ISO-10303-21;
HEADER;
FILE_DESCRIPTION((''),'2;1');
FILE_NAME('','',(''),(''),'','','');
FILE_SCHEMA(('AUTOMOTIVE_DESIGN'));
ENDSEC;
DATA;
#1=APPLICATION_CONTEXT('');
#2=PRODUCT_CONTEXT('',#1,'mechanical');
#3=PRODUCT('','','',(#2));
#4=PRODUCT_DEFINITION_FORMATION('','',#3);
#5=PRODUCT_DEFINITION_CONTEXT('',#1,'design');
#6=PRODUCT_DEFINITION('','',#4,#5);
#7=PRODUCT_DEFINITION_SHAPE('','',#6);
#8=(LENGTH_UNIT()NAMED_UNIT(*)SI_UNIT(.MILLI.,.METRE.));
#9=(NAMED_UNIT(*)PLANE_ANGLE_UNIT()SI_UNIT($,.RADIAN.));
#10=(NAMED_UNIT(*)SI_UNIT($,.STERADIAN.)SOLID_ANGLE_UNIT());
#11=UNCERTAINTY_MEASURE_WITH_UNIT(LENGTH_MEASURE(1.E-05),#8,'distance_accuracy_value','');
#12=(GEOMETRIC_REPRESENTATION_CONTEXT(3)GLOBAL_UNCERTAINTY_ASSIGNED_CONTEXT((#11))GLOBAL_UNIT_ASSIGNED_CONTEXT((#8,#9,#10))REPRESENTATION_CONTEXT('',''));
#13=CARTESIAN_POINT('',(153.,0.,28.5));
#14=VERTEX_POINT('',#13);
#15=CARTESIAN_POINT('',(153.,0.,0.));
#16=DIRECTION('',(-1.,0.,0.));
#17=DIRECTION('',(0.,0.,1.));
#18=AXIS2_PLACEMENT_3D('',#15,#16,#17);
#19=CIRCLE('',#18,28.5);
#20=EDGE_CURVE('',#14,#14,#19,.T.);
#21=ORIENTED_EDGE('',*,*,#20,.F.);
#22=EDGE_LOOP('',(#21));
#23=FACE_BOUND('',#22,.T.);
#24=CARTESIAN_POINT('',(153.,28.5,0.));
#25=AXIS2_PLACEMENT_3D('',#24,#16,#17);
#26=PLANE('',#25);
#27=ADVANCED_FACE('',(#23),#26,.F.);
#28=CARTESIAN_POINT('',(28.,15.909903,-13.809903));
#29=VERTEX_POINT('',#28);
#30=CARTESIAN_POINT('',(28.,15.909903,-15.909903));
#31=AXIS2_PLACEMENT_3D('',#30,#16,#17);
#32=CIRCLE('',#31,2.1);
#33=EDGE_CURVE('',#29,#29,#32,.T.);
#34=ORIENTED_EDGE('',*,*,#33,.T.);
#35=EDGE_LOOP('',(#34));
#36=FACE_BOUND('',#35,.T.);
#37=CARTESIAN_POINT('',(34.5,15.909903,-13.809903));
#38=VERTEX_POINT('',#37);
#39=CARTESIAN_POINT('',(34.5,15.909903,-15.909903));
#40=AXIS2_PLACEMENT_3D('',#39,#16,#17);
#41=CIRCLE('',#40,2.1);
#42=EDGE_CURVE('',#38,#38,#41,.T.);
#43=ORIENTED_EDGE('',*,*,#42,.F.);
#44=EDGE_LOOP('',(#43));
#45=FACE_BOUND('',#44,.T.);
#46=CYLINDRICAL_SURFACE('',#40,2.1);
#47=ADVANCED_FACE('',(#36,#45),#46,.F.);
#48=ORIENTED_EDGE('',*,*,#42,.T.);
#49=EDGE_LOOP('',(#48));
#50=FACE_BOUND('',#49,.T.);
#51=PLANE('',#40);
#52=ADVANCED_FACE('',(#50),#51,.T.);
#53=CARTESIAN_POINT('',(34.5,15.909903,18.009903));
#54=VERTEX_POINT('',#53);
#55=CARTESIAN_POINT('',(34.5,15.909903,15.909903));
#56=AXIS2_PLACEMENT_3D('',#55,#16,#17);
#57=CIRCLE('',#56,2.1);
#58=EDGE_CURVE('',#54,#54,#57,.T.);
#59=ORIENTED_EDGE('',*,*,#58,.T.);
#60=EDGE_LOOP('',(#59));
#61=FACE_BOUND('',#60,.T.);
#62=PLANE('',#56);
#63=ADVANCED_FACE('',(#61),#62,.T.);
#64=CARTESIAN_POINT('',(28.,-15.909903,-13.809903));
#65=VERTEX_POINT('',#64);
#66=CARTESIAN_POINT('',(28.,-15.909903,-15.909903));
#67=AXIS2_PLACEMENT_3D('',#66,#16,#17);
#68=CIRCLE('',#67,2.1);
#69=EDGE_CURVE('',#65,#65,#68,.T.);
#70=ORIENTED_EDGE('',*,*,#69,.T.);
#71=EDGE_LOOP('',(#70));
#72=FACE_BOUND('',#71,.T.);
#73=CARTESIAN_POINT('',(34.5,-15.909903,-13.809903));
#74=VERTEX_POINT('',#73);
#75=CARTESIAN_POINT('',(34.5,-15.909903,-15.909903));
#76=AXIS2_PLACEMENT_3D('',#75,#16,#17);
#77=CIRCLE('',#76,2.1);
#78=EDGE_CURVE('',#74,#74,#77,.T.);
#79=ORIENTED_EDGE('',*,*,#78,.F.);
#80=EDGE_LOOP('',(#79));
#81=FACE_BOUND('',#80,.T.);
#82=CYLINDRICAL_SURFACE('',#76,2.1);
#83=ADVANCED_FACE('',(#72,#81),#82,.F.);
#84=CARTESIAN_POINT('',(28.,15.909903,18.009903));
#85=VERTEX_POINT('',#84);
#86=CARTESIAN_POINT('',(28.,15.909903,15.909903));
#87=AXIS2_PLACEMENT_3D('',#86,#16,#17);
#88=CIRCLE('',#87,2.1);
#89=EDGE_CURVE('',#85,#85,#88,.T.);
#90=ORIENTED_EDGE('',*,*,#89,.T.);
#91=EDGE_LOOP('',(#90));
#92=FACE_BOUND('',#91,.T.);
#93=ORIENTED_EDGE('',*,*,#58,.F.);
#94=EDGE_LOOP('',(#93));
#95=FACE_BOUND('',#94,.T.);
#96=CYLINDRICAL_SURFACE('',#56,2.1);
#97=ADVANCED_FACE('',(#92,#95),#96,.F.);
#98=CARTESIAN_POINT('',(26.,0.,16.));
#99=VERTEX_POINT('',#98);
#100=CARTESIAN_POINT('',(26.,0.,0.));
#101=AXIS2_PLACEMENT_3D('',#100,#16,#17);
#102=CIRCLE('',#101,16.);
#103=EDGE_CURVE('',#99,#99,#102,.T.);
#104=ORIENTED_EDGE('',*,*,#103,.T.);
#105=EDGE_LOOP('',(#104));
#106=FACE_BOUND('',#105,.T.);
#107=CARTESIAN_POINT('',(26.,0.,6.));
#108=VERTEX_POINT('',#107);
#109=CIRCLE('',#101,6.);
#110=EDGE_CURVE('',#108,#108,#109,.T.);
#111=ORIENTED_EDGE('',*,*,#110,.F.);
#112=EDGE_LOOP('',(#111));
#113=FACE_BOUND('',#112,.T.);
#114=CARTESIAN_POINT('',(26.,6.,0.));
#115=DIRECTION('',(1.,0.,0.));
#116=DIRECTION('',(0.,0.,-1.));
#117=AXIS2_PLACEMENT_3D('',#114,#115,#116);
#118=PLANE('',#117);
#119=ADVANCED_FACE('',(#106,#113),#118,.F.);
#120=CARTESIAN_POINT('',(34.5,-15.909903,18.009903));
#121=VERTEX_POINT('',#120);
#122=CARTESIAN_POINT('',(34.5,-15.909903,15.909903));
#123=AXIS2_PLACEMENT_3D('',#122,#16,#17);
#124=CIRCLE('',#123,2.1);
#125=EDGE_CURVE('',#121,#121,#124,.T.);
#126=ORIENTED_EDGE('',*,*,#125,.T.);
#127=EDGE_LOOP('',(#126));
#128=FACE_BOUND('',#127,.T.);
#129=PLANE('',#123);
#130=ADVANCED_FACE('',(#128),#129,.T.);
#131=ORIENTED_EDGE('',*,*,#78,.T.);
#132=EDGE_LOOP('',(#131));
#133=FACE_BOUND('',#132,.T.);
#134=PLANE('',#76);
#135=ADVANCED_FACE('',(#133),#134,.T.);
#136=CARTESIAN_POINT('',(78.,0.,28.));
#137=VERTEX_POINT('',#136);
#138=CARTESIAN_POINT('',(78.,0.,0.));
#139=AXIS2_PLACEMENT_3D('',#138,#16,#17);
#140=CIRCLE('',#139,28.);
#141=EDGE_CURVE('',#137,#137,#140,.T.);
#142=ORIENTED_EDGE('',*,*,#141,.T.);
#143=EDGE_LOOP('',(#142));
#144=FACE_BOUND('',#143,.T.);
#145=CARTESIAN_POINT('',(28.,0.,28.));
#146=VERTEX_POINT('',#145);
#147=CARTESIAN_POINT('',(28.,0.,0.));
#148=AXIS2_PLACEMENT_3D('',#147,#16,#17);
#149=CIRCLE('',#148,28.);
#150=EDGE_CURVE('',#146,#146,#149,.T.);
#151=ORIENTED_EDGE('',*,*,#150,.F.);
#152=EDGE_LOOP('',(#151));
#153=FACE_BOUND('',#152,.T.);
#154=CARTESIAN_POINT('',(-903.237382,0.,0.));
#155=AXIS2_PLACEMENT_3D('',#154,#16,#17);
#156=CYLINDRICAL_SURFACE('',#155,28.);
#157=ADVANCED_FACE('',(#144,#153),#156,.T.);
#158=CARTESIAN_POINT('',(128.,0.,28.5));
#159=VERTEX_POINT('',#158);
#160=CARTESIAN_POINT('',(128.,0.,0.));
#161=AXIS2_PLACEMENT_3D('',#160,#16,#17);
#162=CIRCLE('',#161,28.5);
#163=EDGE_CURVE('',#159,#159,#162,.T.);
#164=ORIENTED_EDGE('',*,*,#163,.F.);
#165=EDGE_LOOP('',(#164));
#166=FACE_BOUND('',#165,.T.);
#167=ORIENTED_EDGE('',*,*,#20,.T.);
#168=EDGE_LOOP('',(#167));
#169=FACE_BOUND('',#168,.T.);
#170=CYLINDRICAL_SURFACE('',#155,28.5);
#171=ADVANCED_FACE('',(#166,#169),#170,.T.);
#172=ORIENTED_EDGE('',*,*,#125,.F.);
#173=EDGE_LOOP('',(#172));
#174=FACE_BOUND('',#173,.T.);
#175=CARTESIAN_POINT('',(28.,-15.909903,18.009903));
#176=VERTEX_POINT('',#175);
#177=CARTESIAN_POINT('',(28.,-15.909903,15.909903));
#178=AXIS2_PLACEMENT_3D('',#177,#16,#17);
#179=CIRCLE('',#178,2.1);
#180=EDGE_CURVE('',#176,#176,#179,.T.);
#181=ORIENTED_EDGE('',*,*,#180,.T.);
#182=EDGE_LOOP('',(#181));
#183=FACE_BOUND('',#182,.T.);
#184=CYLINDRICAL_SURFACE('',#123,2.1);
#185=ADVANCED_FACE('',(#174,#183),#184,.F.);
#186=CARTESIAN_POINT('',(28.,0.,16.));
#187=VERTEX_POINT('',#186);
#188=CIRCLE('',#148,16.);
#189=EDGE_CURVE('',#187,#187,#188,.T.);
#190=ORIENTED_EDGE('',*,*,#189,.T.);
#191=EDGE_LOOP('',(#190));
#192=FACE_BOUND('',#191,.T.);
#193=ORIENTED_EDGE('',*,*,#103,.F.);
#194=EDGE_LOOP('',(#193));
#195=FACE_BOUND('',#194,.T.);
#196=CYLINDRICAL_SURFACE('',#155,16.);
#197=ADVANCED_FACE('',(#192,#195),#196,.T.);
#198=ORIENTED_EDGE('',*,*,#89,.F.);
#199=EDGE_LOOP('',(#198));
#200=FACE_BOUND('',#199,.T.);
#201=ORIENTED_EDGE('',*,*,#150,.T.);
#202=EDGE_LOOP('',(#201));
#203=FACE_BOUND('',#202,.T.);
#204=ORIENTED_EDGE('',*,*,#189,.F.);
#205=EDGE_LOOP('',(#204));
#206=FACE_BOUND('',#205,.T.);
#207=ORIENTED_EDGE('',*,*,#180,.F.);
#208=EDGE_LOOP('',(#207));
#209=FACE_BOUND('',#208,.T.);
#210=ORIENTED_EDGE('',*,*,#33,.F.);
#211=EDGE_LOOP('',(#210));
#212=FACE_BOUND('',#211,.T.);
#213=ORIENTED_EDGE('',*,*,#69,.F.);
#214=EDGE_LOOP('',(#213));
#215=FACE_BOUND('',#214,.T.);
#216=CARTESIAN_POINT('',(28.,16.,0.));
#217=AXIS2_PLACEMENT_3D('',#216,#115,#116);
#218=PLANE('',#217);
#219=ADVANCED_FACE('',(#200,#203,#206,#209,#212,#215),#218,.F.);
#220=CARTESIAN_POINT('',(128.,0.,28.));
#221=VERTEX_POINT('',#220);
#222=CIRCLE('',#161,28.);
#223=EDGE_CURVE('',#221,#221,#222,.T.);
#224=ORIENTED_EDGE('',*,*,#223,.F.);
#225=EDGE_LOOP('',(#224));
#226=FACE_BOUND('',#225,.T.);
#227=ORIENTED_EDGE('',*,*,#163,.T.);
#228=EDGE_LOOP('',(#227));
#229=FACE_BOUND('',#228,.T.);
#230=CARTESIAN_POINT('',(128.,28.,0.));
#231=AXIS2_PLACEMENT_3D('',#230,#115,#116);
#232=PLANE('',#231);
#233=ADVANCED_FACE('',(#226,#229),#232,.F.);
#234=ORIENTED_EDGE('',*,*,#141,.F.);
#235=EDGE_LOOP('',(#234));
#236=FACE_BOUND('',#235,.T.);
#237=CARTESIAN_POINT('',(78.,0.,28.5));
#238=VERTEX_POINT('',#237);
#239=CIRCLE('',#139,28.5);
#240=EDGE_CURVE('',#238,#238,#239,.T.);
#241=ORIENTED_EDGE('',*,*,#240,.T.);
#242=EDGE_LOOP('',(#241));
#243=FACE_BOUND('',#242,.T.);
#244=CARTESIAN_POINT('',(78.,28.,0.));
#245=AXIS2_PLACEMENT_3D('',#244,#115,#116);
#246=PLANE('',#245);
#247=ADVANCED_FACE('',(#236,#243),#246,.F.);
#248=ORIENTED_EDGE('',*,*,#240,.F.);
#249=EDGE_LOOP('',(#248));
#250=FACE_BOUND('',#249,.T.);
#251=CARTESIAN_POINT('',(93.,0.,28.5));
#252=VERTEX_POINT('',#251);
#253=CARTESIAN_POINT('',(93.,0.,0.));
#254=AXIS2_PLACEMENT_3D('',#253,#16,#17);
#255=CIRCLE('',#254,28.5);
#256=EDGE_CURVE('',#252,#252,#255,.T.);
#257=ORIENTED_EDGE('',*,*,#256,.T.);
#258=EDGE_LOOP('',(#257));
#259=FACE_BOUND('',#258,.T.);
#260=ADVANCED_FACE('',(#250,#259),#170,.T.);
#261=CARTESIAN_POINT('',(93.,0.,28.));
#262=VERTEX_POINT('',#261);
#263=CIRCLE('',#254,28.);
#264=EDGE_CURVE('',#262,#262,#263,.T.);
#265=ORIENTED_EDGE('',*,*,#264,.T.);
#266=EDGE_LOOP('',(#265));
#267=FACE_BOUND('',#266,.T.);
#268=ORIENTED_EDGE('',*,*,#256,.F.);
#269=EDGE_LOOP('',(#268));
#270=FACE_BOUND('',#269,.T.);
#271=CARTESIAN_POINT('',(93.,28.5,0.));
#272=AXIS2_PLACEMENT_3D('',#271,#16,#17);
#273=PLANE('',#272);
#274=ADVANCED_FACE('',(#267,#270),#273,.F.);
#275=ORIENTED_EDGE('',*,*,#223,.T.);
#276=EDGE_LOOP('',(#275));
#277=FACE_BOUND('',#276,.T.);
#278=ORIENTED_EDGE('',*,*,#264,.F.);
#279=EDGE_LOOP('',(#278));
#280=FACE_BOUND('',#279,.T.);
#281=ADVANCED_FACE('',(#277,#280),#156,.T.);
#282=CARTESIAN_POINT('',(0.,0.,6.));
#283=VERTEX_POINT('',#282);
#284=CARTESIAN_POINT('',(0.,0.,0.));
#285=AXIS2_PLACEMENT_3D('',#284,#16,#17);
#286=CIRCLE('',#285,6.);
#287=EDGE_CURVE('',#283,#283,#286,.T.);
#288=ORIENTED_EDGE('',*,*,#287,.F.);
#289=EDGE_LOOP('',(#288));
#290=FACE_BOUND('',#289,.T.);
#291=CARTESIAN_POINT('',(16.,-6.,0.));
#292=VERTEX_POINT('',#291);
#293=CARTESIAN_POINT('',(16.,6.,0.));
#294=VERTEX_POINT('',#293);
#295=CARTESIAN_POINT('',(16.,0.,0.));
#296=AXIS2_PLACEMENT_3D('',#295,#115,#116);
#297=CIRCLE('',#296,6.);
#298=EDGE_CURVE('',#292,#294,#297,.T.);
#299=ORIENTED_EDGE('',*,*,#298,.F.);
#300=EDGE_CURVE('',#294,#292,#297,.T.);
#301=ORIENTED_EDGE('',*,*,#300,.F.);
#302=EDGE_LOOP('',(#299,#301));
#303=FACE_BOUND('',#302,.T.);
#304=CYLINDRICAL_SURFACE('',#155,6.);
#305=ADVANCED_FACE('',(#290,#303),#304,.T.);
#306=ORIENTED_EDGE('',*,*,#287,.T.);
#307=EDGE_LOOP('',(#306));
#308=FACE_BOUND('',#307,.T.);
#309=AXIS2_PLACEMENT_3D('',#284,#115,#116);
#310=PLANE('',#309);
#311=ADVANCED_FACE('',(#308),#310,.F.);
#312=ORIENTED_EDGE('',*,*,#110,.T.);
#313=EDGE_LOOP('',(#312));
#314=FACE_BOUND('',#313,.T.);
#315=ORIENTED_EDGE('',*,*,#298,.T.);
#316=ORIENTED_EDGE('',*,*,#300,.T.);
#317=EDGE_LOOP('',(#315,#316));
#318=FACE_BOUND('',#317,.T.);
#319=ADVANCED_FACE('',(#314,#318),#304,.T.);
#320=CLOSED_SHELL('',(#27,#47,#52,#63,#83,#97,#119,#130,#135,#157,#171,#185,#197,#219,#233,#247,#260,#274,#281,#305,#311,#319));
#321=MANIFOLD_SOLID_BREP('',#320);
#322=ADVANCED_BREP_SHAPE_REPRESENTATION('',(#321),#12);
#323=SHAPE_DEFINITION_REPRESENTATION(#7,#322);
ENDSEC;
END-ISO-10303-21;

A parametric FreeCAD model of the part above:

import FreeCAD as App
import Part
import Sketcher


def add_polygon(sketch, points):
    """Adds a closed chain of lines whose ends are joined by coincident constraints."""
    first, n = sketch.GeometryCount, len(points)
    for a, b in zip(points, points[1:] + points[:1]):
        sketch.addGeometry(Part.LineSegment(App.Vector(*a, 0), App.Vector(*b, 0)), False)
    for i in range(n):
        sketch.addConstraint(Sketcher.Constraint("Coincident", first + i, 2, first + (i + 1) % n, 1))

doc = App.newDocument("Part")
body = doc.addObject("PartDesign::Body", "Body")

# Sketch on XY plane
sketch1 = doc.addObject("Sketcher::SketchObject", "Sketch")
body.addObject(sketch1)
sketch1.AttachmentSupport = (doc.XY_Plane, [""])
sketch1.MapMode = "FlatFace"
add_polygon(sketch1, [(0, 0), (153, 0), (153, 28.5), (128, 28.5), (128, 28), (93, 28), (93, 28.5), (78, 28.5), (78, 28), (28, 28), (28, 16), (26, 16), (26, 6), (0, 6)])  # lines 0-13
sketch1.addConstraint(Sketcher.Constraint("Horizontal", 0))
sketch1.addConstraint(Sketcher.Constraint("Vertical", 1))
sketch1.addConstraint(Sketcher.Constraint("Horizontal", 2))
sketch1.addConstraint(Sketcher.Constraint("Vertical", 3))
sketch1.addConstraint(Sketcher.Constraint("Horizontal", 4))
sketch1.addConstraint(Sketcher.Constraint("Vertical", 5))
sketch1.addConstraint(Sketcher.Constraint("Horizontal", 6))
sketch1.addConstraint(Sketcher.Constraint("Vertical", 7))
sketch1.addConstraint(Sketcher.Constraint("Horizontal", 8))
sketch1.addConstraint(Sketcher.Constraint("Vertical", 9))
sketch1.addConstraint(Sketcher.Constraint("Horizontal", 10))
sketch1.addConstraint(Sketcher.Constraint("Vertical", 11))
sketch1.addConstraint(Sketcher.Constraint("Horizontal", 12))
sketch1.addConstraint(Sketcher.Constraint("Vertical", 13))
sketch1.addConstraint(Sketcher.Constraint("Coincident", 13, 2, -1, 1))
sketch1.addConstraint(Sketcher.Constraint("Horizontal", 2, 2, 5, 2))
sketch1.addConstraint(Sketcher.Constraint("Horizontal", 4, 2, 7, 2))
sketch1.addConstraint(Sketcher.Constraint("DistanceX", 0, 1, 0, 2, 153.0))
sketch1.addConstraint(Sketcher.Constraint("DistanceX", 2, 2, 2, 1, 25.0))
sketch1.addConstraint(Sketcher.Constraint("DistanceX", 4, 2, 4, 1, 35.0))
sketch1.addConstraint(Sketcher.Constraint("DistanceX", 6, 2, 6, 1, 15.0))
sketch1.addConstraint(Sketcher.Constraint("DistanceX", 8, 2, 8, 1, 50.0))
sketch1.addConstraint(Sketcher.Constraint("DistanceX", 10, 2, 10, 1, 2.0))
sketch1.addConstraint(Sketcher.Constraint("DistanceY", 9, 2, 9, 1, 12.0))
sketch1.addConstraint(Sketcher.Constraint("DistanceY", 11, 2, 11, 1, 10.0))
sketch1.addConstraint(Sketcher.Constraint("DistanceY", 13, 2, 13, 1, 6.0))
sketch1.addConstraint(Sketcher.Constraint("DistanceY", 1, 1, 1, 2, 28.5))
revolution = doc.addObject("PartDesign::Revolution", "Revolution")
body.addObject(revolution)
revolution.Profile = sketch1
revolution.ReferenceAxis = (sketch1, ["H_Axis"])
revolution.Angle = 360

# Sketch on YZ plane
sketch2 = doc.addObject("Sketcher::SketchObject", "Sketch001")
body.addObject(sketch2)
sketch2.AttachmentSupport = (doc.YZ_Plane, [""])
sketch2.MapMode = "FlatFace"
sketch2.AttachmentOffset = App.Placement(App.Vector(0, 0, 28), App.Rotation())
sketch2.addGeometry(Part.Circle(App.Vector(15.9, -15.9, 0), App.Vector(0, 0, 1), 2.1), False)
sketch2.addGeometry(Part.Circle(App.Vector(15.9, 15.9, 0), App.Vector(0, 0, 1), 2.1), False)
sketch2.addGeometry(Part.Circle(App.Vector(-15.9, 15.9, 0), App.Vector(0, 0, 1), 2.1), False)
sketch2.addGeometry(Part.Circle(App.Vector(-15.9, -15.9, 0), App.Vector(0, 0, 1), 2.1), False)
sketch2.addConstraint(Sketcher.Constraint("Equal", 0, 1))
sketch2.addConstraint(Sketcher.Constraint("Equal", 1, 2))
sketch2.addConstraint(Sketcher.Constraint("Equal", 2, 3))
sketch2.addConstraint(Sketcher.Constraint("Symmetric", 0, 3, 2, 3, -1, 1))
sketch2.addConstraint(Sketcher.Constraint("Symmetric", 1, 3, 3, 3, -1, 1))
sketch2.addConstraint(Sketcher.Constraint("Symmetric", 1, 3, 2, 3, -2))
sketch2.addConstraint(Sketcher.Constraint("Diameter", 0, 4.2))
sketch2.addConstraint(Sketcher.Constraint("DistanceX", -1, 1, 0, 3, 15.909903))
sketch2.addConstraint(Sketcher.Constraint("DistanceY", 0, 3, -1, 1, 15.909903))
pocket1 = doc.addObject("PartDesign::Pocket", "Pocket")
body.addObject(pocket1)
pocket1.Profile = sketch2
pocket1.Length = 6.5
pocket1.Reversed = True

doc.recompute()
